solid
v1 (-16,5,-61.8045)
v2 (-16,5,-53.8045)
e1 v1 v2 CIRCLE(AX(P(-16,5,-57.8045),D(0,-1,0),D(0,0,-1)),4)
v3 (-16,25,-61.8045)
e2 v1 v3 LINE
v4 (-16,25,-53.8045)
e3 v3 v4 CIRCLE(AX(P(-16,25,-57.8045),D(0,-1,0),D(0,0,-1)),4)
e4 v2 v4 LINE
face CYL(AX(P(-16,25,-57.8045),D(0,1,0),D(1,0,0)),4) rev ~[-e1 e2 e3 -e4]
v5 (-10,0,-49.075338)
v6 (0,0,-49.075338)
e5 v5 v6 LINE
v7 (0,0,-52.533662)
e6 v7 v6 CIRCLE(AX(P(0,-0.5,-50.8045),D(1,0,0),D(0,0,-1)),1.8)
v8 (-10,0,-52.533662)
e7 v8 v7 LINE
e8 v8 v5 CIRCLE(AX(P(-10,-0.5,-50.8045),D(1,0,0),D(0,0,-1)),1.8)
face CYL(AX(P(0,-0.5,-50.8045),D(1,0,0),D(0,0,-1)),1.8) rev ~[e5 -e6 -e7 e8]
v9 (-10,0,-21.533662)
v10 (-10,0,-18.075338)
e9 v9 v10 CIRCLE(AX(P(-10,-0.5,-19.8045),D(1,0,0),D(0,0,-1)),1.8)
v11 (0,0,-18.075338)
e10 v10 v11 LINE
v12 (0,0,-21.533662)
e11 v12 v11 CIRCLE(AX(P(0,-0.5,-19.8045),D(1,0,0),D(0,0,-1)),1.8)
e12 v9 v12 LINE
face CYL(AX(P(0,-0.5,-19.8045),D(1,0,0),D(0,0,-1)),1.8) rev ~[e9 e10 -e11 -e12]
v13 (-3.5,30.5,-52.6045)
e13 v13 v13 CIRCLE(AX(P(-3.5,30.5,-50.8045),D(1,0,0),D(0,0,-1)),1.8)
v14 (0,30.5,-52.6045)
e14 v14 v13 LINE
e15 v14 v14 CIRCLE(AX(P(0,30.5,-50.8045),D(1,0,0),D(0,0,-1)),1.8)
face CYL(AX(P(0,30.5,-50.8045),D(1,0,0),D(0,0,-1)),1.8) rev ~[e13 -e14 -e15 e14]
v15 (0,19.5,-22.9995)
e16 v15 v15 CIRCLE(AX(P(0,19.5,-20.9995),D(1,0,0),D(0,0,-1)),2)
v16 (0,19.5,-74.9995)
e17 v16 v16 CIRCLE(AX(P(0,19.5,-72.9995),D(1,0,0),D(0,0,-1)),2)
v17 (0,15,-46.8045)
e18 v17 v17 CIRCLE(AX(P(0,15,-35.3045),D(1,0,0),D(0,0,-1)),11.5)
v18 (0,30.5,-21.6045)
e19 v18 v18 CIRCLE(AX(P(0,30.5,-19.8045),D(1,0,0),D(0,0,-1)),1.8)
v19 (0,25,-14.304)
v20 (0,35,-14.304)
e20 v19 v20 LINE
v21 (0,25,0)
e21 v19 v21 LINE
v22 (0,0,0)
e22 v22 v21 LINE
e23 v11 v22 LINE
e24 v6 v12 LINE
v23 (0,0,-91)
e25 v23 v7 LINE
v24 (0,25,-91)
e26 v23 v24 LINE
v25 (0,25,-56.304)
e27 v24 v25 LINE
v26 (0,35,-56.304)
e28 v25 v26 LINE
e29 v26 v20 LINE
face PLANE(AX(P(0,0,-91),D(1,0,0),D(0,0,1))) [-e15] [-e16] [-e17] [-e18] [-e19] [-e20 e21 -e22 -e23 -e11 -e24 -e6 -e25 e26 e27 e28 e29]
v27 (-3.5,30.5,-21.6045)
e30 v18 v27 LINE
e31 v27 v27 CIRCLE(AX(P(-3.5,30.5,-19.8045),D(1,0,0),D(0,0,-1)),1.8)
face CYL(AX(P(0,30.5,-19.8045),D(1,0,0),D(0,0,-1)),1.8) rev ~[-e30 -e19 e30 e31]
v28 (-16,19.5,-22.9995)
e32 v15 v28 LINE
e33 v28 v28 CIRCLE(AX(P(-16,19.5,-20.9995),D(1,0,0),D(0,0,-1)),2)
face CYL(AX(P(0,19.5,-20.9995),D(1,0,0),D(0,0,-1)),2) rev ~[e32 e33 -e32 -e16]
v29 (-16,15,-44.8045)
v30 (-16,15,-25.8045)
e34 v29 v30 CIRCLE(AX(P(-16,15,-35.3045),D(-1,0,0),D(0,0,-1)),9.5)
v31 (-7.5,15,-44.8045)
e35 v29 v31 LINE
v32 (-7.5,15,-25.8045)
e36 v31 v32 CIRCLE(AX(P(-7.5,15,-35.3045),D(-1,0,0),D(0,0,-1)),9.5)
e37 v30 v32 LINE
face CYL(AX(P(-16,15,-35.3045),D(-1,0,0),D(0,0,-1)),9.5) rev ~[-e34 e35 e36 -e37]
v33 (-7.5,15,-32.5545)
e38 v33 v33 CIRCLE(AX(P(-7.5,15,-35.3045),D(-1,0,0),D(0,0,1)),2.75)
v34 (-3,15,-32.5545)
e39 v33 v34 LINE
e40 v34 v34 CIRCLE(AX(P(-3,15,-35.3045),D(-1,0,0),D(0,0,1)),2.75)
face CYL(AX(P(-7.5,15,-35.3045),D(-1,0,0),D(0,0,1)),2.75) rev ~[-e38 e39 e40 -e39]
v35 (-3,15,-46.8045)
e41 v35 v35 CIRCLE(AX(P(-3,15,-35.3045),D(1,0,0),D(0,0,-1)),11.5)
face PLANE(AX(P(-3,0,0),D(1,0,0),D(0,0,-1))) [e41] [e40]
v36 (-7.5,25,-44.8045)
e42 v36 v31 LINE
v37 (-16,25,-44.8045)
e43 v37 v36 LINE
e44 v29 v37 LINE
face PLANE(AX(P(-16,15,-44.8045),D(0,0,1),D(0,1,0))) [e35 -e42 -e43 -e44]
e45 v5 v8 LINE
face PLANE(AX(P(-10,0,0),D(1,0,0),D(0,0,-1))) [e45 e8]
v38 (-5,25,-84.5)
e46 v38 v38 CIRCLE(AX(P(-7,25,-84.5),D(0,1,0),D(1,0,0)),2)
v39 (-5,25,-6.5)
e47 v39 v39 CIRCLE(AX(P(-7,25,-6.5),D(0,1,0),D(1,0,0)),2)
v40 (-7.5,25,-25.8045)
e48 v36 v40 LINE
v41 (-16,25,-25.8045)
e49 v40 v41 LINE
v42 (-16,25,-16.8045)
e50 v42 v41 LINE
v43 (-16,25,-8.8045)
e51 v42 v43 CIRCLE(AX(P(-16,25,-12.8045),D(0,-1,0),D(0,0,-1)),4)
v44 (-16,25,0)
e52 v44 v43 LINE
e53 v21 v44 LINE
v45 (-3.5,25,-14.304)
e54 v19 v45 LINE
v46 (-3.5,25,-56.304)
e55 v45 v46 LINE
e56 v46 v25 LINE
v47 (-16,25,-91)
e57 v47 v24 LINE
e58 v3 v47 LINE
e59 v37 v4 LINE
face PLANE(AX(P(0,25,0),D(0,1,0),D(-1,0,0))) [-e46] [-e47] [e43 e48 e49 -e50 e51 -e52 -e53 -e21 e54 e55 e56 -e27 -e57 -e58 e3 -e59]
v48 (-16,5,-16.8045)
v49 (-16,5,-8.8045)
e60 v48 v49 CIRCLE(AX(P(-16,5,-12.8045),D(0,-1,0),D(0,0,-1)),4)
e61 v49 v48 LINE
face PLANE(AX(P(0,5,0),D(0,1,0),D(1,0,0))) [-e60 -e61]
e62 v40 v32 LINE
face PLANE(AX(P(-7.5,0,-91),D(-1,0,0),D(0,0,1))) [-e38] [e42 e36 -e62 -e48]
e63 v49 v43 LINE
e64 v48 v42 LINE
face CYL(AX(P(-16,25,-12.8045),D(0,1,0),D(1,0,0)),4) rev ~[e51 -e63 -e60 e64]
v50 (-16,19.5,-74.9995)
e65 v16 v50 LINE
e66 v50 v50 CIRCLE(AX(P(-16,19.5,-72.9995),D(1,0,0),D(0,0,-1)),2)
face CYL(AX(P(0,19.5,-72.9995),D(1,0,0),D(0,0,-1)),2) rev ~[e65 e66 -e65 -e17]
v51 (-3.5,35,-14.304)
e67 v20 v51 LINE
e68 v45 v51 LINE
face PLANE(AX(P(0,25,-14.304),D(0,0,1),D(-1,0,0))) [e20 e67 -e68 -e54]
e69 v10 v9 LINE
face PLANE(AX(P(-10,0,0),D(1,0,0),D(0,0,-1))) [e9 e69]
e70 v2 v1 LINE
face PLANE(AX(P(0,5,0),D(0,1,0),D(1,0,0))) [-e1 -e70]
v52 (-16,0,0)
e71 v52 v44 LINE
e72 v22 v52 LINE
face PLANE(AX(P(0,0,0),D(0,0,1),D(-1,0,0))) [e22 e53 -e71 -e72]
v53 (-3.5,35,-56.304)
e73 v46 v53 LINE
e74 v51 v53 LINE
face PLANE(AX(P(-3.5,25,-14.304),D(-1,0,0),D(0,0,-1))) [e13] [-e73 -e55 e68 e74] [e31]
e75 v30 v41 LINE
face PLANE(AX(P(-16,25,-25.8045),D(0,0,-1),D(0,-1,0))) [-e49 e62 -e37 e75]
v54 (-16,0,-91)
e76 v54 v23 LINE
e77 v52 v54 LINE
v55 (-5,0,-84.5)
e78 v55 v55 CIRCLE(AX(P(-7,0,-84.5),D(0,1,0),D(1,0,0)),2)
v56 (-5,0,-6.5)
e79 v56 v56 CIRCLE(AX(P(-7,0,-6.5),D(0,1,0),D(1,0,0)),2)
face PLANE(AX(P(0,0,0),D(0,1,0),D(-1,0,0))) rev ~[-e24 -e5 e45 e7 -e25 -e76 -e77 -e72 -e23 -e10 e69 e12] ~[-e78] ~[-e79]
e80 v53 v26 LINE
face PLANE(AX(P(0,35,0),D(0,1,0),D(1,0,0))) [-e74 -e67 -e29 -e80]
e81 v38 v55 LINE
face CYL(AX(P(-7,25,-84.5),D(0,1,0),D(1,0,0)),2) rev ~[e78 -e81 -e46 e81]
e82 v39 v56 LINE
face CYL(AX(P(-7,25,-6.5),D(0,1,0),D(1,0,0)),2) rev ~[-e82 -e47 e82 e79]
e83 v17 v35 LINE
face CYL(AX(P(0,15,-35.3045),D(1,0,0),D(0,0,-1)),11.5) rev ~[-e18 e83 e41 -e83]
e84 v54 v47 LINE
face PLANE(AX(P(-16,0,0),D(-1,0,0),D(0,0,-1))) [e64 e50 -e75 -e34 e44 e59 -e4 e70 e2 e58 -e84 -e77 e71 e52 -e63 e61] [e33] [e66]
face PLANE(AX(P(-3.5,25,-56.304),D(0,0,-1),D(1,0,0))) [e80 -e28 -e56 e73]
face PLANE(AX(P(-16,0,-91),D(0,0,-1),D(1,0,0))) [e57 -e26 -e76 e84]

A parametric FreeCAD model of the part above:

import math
import FreeCAD as App
import Part
import Sketcher

V = App.Vector

doc = App.newDocument("Part")
body = doc.addObject("PartDesign::Body", "Body")

# Sketch on XZ plane
sketch1 = body.newObject("Sketcher::SketchObject", "Sketch")
sketch1.AttachmentSupport = (doc.getObject("XZ_Plane"), [""])
sketch1.MapMode = "FlatFace"
sketch1.addGeometry([
    Part.LineSegment(V(-16, 0, 0), V(0, 0, 0)),
    Part.LineSegment(V(0, 0, 0), V(0, -91, 0)),
    Part.LineSegment(V(0, -91, 0), V(-16, -91, 0)),
    Part.LineSegment(V(-16, -91, 0), V(-16, 0, 0)),
], False)
sketch1.addConstraint([
    Sketcher.Constraint("Coincident", 0, 2, 1, 1),
    Sketcher.Constraint("Coincident", 1, 2, 2, 1),
    Sketcher.Constraint("Coincident", 2, 2, 3, 1),
    Sketcher.Constraint("Coincident", 3, 2, 0, 1),
    Sketcher.Constraint("Horizontal", 0),
    Sketcher.Constraint("Vertical", 1),
    Sketcher.Constraint("Horizontal", 2),
    Sketcher.Constraint("Vertical", 3),
    Sketcher.Constraint("Coincident", 0, 2, -1, 1),
    Sketcher.Constraint("DistanceX", 0, 1, 0, 2, 16.0),
    Sketcher.Constraint("DistanceY", 1, 2, 1, 1, 91.0),
])
pad1 = body.newObject("PartDesign::Pad", "Pad")
pad1.Profile = sketch1
pad1.Length = 25
pad1.Reversed = True

# Sketch on XZ plane
sketch2 = body.newObject("Sketcher::SketchObject", "Sketch001")
sketch2.AttachmentSupport = (doc.getObject("XZ_Plane"), [""])
sketch2.MapMode = "FlatFace"
sketch2.AttachmentOffset = App.Placement(V(0, 0, -25), App.Rotation())
sketch2.addGeometry([
    Part.Circle(V(-16, -57.8045, 0), V(0, 0, 1), 4),
    Part.Circle(V(-16, -12.8045, 0), V(0, 0, 1), 4),
], False)
sketch2.addConstraint([
    Sketcher.Constraint("Equal", 0, 1),
    Sketcher.Constraint("Vertical", 0, 3, 1, 3),
    Sketcher.Constraint("Diameter", 0, 8.0),
    Sketcher.Constraint("DistanceY", 0, 3, 1, 3, 45.0),
    Sketcher.Constraint("DistanceX", 0, 3, -1, 1, 16.0),
    Sketcher.Constraint("DistanceY", 0, 3, -1, 1, 57.8045),
])
pocket1 = body.newObject("PartDesign::Pocket", "Pocket")
pocket1.Profile = sketch2
pocket1.Length = 20
pocket1.Reversed = True

# Sketch on YZ plane
sketch3 = body.newObject("Sketcher::SketchObject", "Sketch002")
sketch3.AttachmentSupport = (doc.getObject("YZ_Plane"), [""])
sketch3.MapMode = "FlatFace"
sketch3.addGeometry([
    Part.Circle(V(19.5, -20.9995, 0), V(0, 0, 1), 2),
    Part.Circle(V(19.5, -72.9995, 0), V(0, 0, 1), 2),
], False)
sketch3.addConstraint([
    Sketcher.Constraint("Equal", 0, 1),
    Sketcher.Constraint("Vertical", 0, 3, 1, 3),
    Sketcher.Constraint("Diameter", 0, 4.0),
    Sketcher.Constraint("DistanceY", 1, 3, 0, 3, 52.0),
    Sketcher.Constraint("DistanceX", -1, 1, 0, 3, 19.5),
    Sketcher.Constraint("DistanceY", 0, 3, -1, 1, 20.9995),
])
pocket2 = body.newObject("PartDesign::Pocket", "Pocket001")
pocket2.Profile = sketch3
pocket2.Length = 30

# Sketch on YZ plane
sketch4 = body.newObject("Sketcher::SketchObject", "Sketch003")
sketch4.AttachmentSupport = (doc.getObject("YZ_Plane"), [""])
sketch4.MapMode = "FlatFace"
sketch4.AttachmentOffset = App.Placement(V(0, 0, -16), App.Rotation())
sketch4.addGeometry([
    Part.ArcOfCircle(Part.Circle(V(15, -35.3045, 0), V(0, 0, 1), 9.5), math.radians(90), math.radians(270)),
    Part.LineSegment(V(15, -25.8045, 0), V(30.0529, -25.8045, 0)),
    Part.LineSegment(V(30.0529, -25.8045, 0), V(30.0529, -44.8045, 0)),
    Part.LineSegment(V(30.0529, -44.8045, 0), V(15, -44.8045, 0)),
], False)
sketch4.addConstraint([
    Sketcher.Constraint("Tangent", 0, 1, 1, 1),
    Sketcher.Constraint("Coincident", 1, 2, 2, 1),
    Sketcher.Constraint("Coincident", 2, 2, 3, 1),
    Sketcher.Constraint("Tangent", 3, 2, 0, 2),
    Sketcher.Constraint("Horizontal", 1),
    Sketcher.Constraint("Vertical", 2),
    Sketcher.Constraint("Horizontal", 3),
    Sketcher.Constraint("Radius", 0, 9.5),
    Sketcher.Constraint("DistanceX", -1, 1, 0, 3, 15.0),
    Sketcher.Constraint("DistanceX", 1, 1, 1, 2, 15.053),
    Sketcher.Constraint("DistanceY", 0, 3, -1, 1, 35.3045),
])
pocket3 = body.newObject("PartDesign::Pocket", "Pocket002")
pocket3.Profile = sketch4
pocket3.Length = 8.5
pocket3.Reversed = True

# Sketch on YZ plane
sketch5 = body.newObject("Sketcher::SketchObject", "Sketch004")
sketch5.AttachmentSupport = (doc.getObject("YZ_Plane"), [""])
sketch5.MapMode = "FlatFace"
sketch5.AttachmentOffset = App.Placement(V(0, 0, -7.5), App.Rotation())
sketch5.addGeometry(Part.Circle(V(15, -35.3045, 0), V(0, 0, 1), 2.75), False)
sketch5.addConstraint([
    Sketcher.Constraint("Diameter", 0, 5.5),
    Sketcher.Constraint("DistanceX", -1, 1, 0, 3, 15.0),
    Sketcher.Constraint("DistanceY", 0, 3, -1, 1, 35.3045),
])
pocket4 = body.newObject("PartDesign::Pocket", "Pocket003")
pocket4.Profile = sketch5
pocket4.Length = 30
pocket4.Reversed = True

# Sketch on XZ plane
sketch6 = body.newObject("Sketcher::SketchObject", "Sketch005")
sketch6.AttachmentSupport = (doc.getObject("XZ_Plane"), [""])
sketch6.MapMode = "FlatFace"
sketch6.AttachmentOffset = App.Placement(V(0, 0, -25), App.Rotation())
sketch6.addGeometry([
    Part.LineSegment(V(-3.5, -14.304, 0), V(0, -14.304, 0)),
    Part.LineSegment(V(0, -14.304, 0), V(0, -56.304, 0)),
    Part.LineSegment(V(0, -56.304, 0), V(-3.5, -56.304, 0)),
    Part.LineSegment(V(-3.5, -56.304, 0), V(-3.5, -14.304, 0)),
], False)
sketch6.addConstraint([
    Sketcher.Constraint("Coincident", 0, 2, 1, 1),
    Sketcher.Constraint("Coincident", 1, 2, 2, 1),
    Sketcher.Constraint("Coincident", 2, 2, 3, 1),
    Sketcher.Constraint("Coincident", 3, 2, 0, 1),
    Sketcher.Constraint("Horizontal", 0),
    Sketcher.Constraint("Vertical", 1),
    Sketcher.Constraint("Horizontal", 2),
    Sketcher.Constraint("Vertical", 3),
    Sketcher.Constraint("PointOnObject", 0, 2, -2),
    Sketcher.Constraint("DistanceY", 1, 2, 1, 1, 42.0),
    Sketcher.Constraint("DistanceX", 0, 1, 0, 2, 3.5),
    Sketcher.Constraint("DistanceY", 0, 2, -1, 1, 14.304),
])
pad2 = body.newObject("PartDesign::Pad", "Pad001")
pad2.Profile = sketch6
pad2.Length = 10
pad2.Reversed = True

# Sketch on YZ plane
sketch7 = body.newObject("Sketcher::SketchObject", "Sketch006")
sketch7.AttachmentSupport = (doc.getObject("YZ_Plane"), [""])
sketch7.MapMode = "FlatFace"
sketch7.addGeometry([
    Part.Circle(V(-0.5, -19.8045, 0), V(0, 0, 1), 1.8),
    Part.Circle(V(-0.5, -50.8045, 0), V(0, 0, 1), 1.8),
    Part.Circle(V(30.5, -50.8045, 0), V(0, 0, 1), 1.8),
    Part.Circle(V(30.5, -19.8045, 0), V(0, 0, 1), 1.8),
], False)
sketch7.addConstraint([
    Sketcher.Constraint("Equal", 0, 1),
    Sketcher.Constraint("Equal", 1, 2),
    Sketcher.Constraint("Equal", 2, 3),
    Sketcher.Constraint("Horizontal", 1, 3, 2, 3),
    Sketcher.Constraint("Horizontal", 0, 3, 3, 3),
    Sketcher.Constraint("Vertical", 0, 3, 1, 3),
    Sketcher.Constraint("Vertical", 2, 3, 3, 3),
    Sketcher.Constraint("Diameter", 0, 3.6),
    Sketcher.Constraint("DistanceY", 1, 3, 0, 3, 31.0),
    Sketcher.Constraint("DistanceX", 1, 3, 2, 3, 31.0),
    Sketcher.Constraint("DistanceX", 0, 3, -1, 1, 0.5),
    Sketcher.Constraint("DistanceY", 0, 3, -1, 1, 19.8045),
])
pocket5 = body.newObject("PartDesign::Pocket", "Pocket004")
pocket5.Profile = sketch7
pocket5.Length = 10

# Sketch on YZ plane
sketch8 = body.newObject("Sketcher::SketchObject", "Sketch007")
sketch8.AttachmentSupport = (doc.getObject("YZ_Plane"), [""])
sketch8.MapMode = "FlatFace"
sketch8.addGeometry([
    Part.Circle(V(15, -35.3045, 0), V(0, 0, 1), 11.5),
    Part.Circle(V(15, -35.3045, 0), V(0, 0, 1), 2.75),
], False)
sketch8.addConstraint([
    Sketcher.Constraint("Coincident", 1, 3, 0, 3),
    Sketcher.Constraint("Diameter", 0, 23.0),
    Sketcher.Constraint("Diameter", 1, 5.5),
    Sketcher.Constraint("DistanceX", -1, 1, 0, 3, 15.0),
    Sketcher.Constraint("DistanceY", 0, 3, -1, 1, 35.3045),
])
pocket6 = body.newObject("PartDesign::Pocket", "Pocket005")
pocket6.Profile = sketch8
pocket6.Length = 3

# Sketch on XZ plane
sketch9 = body.newObject("Sketcher::SketchObject", "Sketch008")
sketch9.AttachmentSupport = (doc.getObject("XZ_Plane"), [""])
sketch9.MapMode = "FlatFace"
sketch9.AttachmentOffset = App.Placement(V(0, 0, -25), App.Rotation())
sketch9.addGeometry([
    Part.Circle(V(-7, -6.5, 0), V(0, 0, 1), 2),
    Part.Circle(V(-7, -84.5, 0), V(0, 0, 1), 2),
], False)
sketch9.addConstraint([
    Sketcher.Constraint("Equal", 0, 1),
    Sketcher.Constraint("Vertical", 0, 3, 1, 3),
    Sketcher.Constraint("Diameter", 0, 4.0),
    Sketcher.Constraint("DistanceY", 0, 3, -1, 1, 6.5),
    Sketcher.Constraint("DistanceX", 0, 3, -1, 1, 7.0),
    Sketcher.Constraint("DistanceY", 1, 3, 0, 3, 78.0),
])
pocket7 = body.newObject("PartDesign::Pocket", "Pocket006")
pocket7.Profile = sketch9
pocket7.Length = 30
pocket7.Reversed = True

doc.recompute()
